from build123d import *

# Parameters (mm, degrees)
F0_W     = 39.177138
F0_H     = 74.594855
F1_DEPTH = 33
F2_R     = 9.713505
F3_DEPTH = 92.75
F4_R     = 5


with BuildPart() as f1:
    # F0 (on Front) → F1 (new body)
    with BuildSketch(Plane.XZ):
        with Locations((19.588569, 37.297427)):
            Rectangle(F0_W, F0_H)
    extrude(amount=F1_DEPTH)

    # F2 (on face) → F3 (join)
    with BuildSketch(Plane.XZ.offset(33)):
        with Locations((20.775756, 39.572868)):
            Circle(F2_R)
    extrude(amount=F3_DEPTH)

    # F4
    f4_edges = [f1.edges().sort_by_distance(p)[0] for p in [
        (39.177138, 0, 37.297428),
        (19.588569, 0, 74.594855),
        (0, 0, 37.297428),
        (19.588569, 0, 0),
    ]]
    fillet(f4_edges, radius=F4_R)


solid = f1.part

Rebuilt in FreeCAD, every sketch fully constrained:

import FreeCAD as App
import Part
import Sketcher
from FreeCAD import Vector


def edges_at(feature, points):
    """Names of the edges that pass closest to the given points."""
    edges = feature.Shape.Edges
    near = lambda p: min(range(len(edges)), key=lambda i: edges[i].distToShape(Part.Vertex(*p))[0])
    return sorted({f"Edge{near(p) + 1}" for p in points})


def add_polygon(sketch, points):
    """Adds a closed chain of lines whose ends are joined by coincident constraints."""
    first, n = sketch.GeometryCount, len(points)
    for a, b in zip(points, points[1:] + points[:1]):
        sketch.addGeometry(Part.LineSegment(App.Vector(*a, 0), App.Vector(*b, 0)), False)
    for i in range(n):
        sketch.addConstraint(Sketcher.Constraint("Coincident", first + i, 2, first + (i + 1) % n, 1))

doc = App.newDocument("Part")
params = doc.addObject("Spreadsheet::Sheet", "Params")
for row, (alias, value) in enumerate([
    ("pad1_length", "33 mm"),
    ("pad2_length", "92.75 mm"),
    ("fillet_radius", "5 mm"),
], start=1):
    params.set(f"A{row}", alias)
    params.set(f"B{row}", "=" + value)
    params.setAlias(f"B{row}", alias)

body = doc.addObject("PartDesign::Body", "Body")

# Sketch on XZ plane
sketch1 = body.newObject("Sketcher::SketchObject", "Sketch")
sketch1.AttachmentSupport = (doc.getObject("XZ_Plane"), [""])
sketch1.MapMode = "FlatFace"
add_polygon(sketch1, [(0, 75), (0, 0), (39, 0), (39, 75)])  # lines 0-3
sketch1.addConstraint([
    Sketcher.Constraint("Vertical", 0),
    Sketcher.Constraint("Horizontal", 1),
    Sketcher.Constraint("Vertical", 2),
    Sketcher.Constraint("Horizontal", 3),
    Sketcher.Constraint("Coincident", 0, 2, -1, 1),
    Sketcher.Constraint("DistanceX", 1, 1, 1, 2, 39.177138),
    Sketcher.Constraint("DistanceY", 0, 2, 0, 1, 74.594855),
])
pad1 = body.newObject("PartDesign::Pad", "Pad")
pad1.Profile = sketch1
pad1.setExpression("Length", "Params.pad1_length")

# Sketch on XZ plane
sketch2 = body.newObject("Sketcher::SketchObject", "Sketch001")
sketch2.AttachmentSupport = (doc.getObject("XZ_Plane"), [""])
sketch2.MapMode = "FlatFace"
sketch2.AttachmentOffset = App.Placement(Vector(0, 0, 33), App.Rotation())
sketch2.addGeometry(Part.Circle(Vector(21, 40, 0), Vector(0, 0, 1), 10), False)
sketch2.addConstraint([
    Sketcher.Constraint("Diameter", 0, 19.42701),
    Sketcher.Constraint("DistanceX", -1, 1, 0, 3, 20.775756),
    Sketcher.Constraint("DistanceY", -1, 1, 0, 3, 39.572868),
])
pad2 = body.newObject("PartDesign::Pad", "Pad001")
pad2.Profile = sketch2
pad2.setExpression("Length", "Params.pad2_length")
doc.recompute()

fillet = body.newObject("PartDesign::Fillet", "Fillet")
fillet.Base = (pad2, edges_at(pad2, [
    (39.177, 0, 37.297),
    (19.589, 0, 74.595),
    (0, 0, 37.297),
    (19.589, 0, 0),
]))
fillet.setExpression("Radius", "Params.fillet_radius")

doc.recompute()
